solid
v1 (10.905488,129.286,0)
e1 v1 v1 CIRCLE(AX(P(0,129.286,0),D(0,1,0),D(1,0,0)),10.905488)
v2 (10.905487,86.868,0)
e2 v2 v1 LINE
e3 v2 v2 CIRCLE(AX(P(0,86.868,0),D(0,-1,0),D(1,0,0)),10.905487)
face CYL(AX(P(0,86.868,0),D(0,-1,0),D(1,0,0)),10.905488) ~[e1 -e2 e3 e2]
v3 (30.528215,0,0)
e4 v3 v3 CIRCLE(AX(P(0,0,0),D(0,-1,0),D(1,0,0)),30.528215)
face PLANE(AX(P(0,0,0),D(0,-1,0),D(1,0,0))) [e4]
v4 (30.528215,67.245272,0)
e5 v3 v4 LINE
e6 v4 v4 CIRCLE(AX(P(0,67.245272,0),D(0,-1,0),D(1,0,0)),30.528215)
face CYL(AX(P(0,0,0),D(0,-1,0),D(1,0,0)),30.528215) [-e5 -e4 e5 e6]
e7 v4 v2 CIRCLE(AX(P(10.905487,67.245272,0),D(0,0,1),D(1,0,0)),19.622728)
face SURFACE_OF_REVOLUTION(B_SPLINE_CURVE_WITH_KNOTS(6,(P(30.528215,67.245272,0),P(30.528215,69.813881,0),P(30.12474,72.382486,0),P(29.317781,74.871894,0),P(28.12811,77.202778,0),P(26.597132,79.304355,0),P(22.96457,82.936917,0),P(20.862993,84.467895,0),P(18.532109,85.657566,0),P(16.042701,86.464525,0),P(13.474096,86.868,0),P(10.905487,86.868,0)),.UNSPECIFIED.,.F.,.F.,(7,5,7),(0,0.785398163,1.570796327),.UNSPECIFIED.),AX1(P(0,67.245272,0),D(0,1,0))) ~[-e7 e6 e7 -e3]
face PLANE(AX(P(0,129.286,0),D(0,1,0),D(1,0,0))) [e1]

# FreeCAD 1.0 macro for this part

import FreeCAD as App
import Part
import Sketcher
Q = App.Units.Quantity


def edges_at(feature, points):
    """Names of the edges that pass closest to the given points."""
    edges = feature.Shape.Edges
    near = lambda p: min(range(len(edges)), key=lambda i: edges[i].distToShape(Part.Vertex(*p))[0])
    return sorted({f"Edge{near(p) + 1}" for p in points})

doc = App.newDocument("Part")
params = doc.addObject("Spreadsheet::Sheet", "Params")
for row, (alias, value) in enumerate([
    ("pad1_length", "3.42 in"),
    ("fillet_radius", "19.622728 mm"),
    ("pad2_length", "1.67 in"),
], start=1):
    params.set(f"A{row}", alias)
    params.set(f"B{row}", "=" + value)
    params.setAlias(f"B{row}", alias)

body = doc.addObject("PartDesign::Body", "Body")

sketch1 = body.newObject("Sketcher::SketchObject", "Sketch")
sketch1.AttachmentSupport = (doc.getObject("XZ_Plane"), [""])
sketch1.MapMode = "FlatFace"
sketch1.addGeometry(Part.Circle(App.Vector(0, 0, 0), App.Vector(0, 0, 1), 31), False)
sketch1.addConstraint([
    Sketcher.Constraint("Coincident", 0, 3, -1, 1),
    Sketcher.Constraint("Diameter", 0, Q("61.05643 mm")),
])
pad1 = body.newObject("PartDesign::Pad", "Pad")
pad1.Profile = sketch1
pad1.setExpression("Length", "Params.pad1_length")
pad1.Reversed = True
doc.recompute()

fillet = body.newObject("PartDesign::Fillet", "Fillet")
fillet.Base = (pad1, edges_at(pad1, [(-30.528, 86.868, 0)]))
fillet.setExpression("Radius", "Params.fillet_radius")

sketch2 = body.newObject("Sketcher::SketchObject", "Sketch001")
sketch2.AttachmentSupport = (doc.getObject("XZ_Plane"), [""])
sketch2.MapMode = "FlatFace"
sketch2.AttachmentOffset = App.Placement(App.Vector(0, 0, -3.42 * 25.4), App.Rotation())
sketch2.addGeometry(Part.Circle(App.Vector(0, 0, 0), App.Vector(0, 0, 1), 11), False)
sketch2.addConstraint([
    Sketcher.Constraint("Coincident", 0, 3, -1, 1),
    Sketcher.Constraint("Diameter", 0, Q("0.8586998 in")),
])
pad2 = body.newObject("PartDesign::Pad", "Pad001")
pad2.Profile = sketch2
pad2.setExpression("Length", "Params.pad2_length")
pad2.Reversed = True

doc.recompute()
